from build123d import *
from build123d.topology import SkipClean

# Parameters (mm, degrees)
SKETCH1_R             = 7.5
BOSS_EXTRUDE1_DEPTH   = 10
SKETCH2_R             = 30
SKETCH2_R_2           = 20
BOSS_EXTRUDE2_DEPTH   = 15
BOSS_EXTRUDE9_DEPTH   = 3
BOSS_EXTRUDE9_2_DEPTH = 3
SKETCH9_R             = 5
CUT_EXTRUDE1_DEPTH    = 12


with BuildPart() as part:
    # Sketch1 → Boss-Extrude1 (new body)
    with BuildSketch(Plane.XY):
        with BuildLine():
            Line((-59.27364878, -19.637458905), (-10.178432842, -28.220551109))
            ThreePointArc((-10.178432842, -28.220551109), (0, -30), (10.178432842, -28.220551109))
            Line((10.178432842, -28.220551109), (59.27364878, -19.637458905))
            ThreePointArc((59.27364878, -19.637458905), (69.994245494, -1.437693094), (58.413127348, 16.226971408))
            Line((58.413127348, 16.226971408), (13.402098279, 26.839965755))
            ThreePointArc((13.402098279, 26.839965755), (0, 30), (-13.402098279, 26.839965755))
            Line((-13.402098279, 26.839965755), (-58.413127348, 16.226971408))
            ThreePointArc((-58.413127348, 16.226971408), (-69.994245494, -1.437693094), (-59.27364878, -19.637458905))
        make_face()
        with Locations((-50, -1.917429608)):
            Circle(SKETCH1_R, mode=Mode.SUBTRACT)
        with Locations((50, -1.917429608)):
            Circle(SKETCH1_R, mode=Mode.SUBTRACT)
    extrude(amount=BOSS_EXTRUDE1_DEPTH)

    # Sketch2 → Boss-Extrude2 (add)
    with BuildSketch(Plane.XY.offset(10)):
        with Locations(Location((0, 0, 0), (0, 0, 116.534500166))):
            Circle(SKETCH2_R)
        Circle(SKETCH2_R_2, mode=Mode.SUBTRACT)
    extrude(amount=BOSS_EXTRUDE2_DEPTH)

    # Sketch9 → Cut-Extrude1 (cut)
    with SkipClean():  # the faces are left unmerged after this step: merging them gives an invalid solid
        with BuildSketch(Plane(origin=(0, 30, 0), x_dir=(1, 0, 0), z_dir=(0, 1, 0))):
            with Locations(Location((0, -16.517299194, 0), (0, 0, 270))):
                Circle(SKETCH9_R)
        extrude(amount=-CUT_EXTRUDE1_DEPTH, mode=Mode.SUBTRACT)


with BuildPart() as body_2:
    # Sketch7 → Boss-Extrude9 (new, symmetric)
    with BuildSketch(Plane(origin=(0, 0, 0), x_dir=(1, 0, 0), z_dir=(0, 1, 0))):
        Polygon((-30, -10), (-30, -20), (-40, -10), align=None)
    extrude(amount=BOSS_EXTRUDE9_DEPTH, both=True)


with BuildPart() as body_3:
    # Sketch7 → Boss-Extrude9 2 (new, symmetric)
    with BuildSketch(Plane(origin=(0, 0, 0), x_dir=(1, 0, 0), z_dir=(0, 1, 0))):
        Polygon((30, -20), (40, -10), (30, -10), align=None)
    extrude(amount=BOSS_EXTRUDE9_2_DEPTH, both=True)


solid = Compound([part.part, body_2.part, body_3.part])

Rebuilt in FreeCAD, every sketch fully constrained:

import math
import FreeCAD as App
import Part
import Sketcher
Q = App.Units.Quantity

doc = App.newDocument("Part")
body = doc.addObject("PartDesign::Body", "Body")

# Sketch on XY plane
sketch1 = doc.addObject("Sketcher::SketchObject", "Sketch")
body.addObject(sketch1)
sketch1.AttachmentSupport = (doc.XY_Plane, [""])
sketch1.MapMode = "FlatFace"
sketch1.addGeometry([
    Part.LineSegment(App.Vector(-59.273649, -19.637459, 0), App.Vector(-10.178433, -28.220551, 0)),  # 0
    Part.ArcOfCircle(Part.Circle(App.Vector(0, 0, 0), App.Vector(0, 0, 1), 30), math.radians(-109.833081), math.radians(-70.166919)),  # 1
    Part.LineSegment(App.Vector(10.178433, -28.220551, 0), App.Vector(59.273649, -19.637459, 0)),  # 2
    Part.ArcOfCircle(Part.Circle(App.Vector(50, -1.91743, 0), App.Vector(0, 0, 1), 20), math.radians(-62.375015), math.radians(65.123966)),  # 3
    Part.LineSegment(App.Vector(58.413127, 16.226971, 0), App.Vector(13.402098, 26.839966, 0)),  # 4
    Part.ArcOfCircle(Part.Circle(App.Vector(0, 0, 0), App.Vector(0, 0, 1), 30), math.radians(63.4655), math.radians(116.5345)),  # 5
    Part.LineSegment(App.Vector(-13.402098, 26.839966, 0), App.Vector(-58.413127, 16.226971, 0)),  # 6
    Part.ArcOfCircle(Part.Circle(App.Vector(-50, -1.91743, 0), App.Vector(0, 0, 1), 20), math.radians(114.876034), math.radians(242.375015)),  # 7
    Part.Circle(App.Vector(-50, -1.91743, 0), App.Vector(0, 0, 1), 7.5),  # 8
    Part.Circle(App.Vector(50, -1.91743, 0), App.Vector(0, 0, 1), 7.5),  # 9
], False)
sketch1.addConstraint([
    Sketcher.Constraint("Coincident", 0, 2, 1, 1),
    Sketcher.Constraint("Coincident", 1, 2, 2, 1),
    Sketcher.Constraint("Coincident", 2, 2, 3, 1),
    Sketcher.Constraint("Coincident", 3, 2, 4, 1),
    Sketcher.Constraint("Coincident", 4, 2, 5, 1),
    Sketcher.Constraint("Coincident", 5, 2, 6, 1),
    Sketcher.Constraint("Coincident", 6, 2, 7, 1),
    Sketcher.Constraint("Coincident", 7, 2, 0, 1),
    Sketcher.Constraint("Coincident", 1, 3, -1, 1),
    Sketcher.Constraint("Coincident", 5, 3, -1, 1),
    Sketcher.Constraint("Coincident", 8, 3, 7, 3),
    Sketcher.Constraint("Coincident", 9, 3, 3, 3),
    Sketcher.Constraint("Equal", 1, 5),
    Sketcher.Constraint("Equal", 3, 7),
    Sketcher.Constraint("Equal", 8, 9),
    Sketcher.Constraint("Symmetric", 3, 3, 7, 3, -2),
    Sketcher.Constraint("Horizontal", 0, 2, 1, 2),
    Sketcher.Constraint("Horizontal", 4, 2, 5, 2),
    Sketcher.Constraint("Horizontal", 3, 2, 6, 2),
    Sketcher.Constraint("Horizontal", 2, 2, 7, 2),
    Sketcher.Constraint("Diameter", 8, Q("15 mm")),
    Sketcher.Constraint("Radius", 1, Q("30 mm")),
    Sketcher.Constraint("Radius", 3, Q("20 mm")),
    Sketcher.Constraint("DistanceX", -1, 1, 3, 3, Q("50 mm")),
    Sketcher.Constraint("DistanceX", -1, 1, 4, 2, Q("13.402098 mm")),
    Sketcher.Constraint("DistanceY", 3, 3, 3, 2, Q("18.144401 mm")),
    Sketcher.Constraint("Distance", 0, Q("49.83984 mm")),
    Sketcher.Constraint("DistanceY", 3, 3, -1, 1, Q("1.91743 mm")),
    Sketcher.Constraint("DistanceY", 0, 2, -1, 1, Q("28.220551 mm")),
])
pad1 = doc.addObject("PartDesign::Pad", "Pad")
body.addObject(pad1)
pad1.Profile = sketch1
pad1.Length = 10

# Sketch on XY plane
sketch2 = doc.addObject("Sketcher::SketchObject", "Sketch001")
body.addObject(sketch2)
sketch2.AttachmentSupport = (doc.XY_Plane, [""])
sketch2.MapMode = "FlatFace"
sketch2.AttachmentOffset = App.Placement(App.Vector(0, 0, 10), App.Rotation())
sketch2.addGeometry([
    Part.Circle(App.Vector(0, 0, 0), App.Vector(0, 0, 1), 30),
    Part.Circle(App.Vector(0, 0, 0), App.Vector(0, 0, 1), 20),
], False)
sketch2.addConstraint([
    Sketcher.Constraint("Coincident", 0, 3, -1, 1),
    Sketcher.Constraint("Coincident", 1, 3, -1, 1),
    Sketcher.Constraint("Diameter", 0, Q("60 mm")),
    Sketcher.Constraint("Diameter", 1, Q("40 mm")),
])
pad2 = doc.addObject("PartDesign::Pad", "Pad001")
body.addObject(pad2)
pad2.Profile = sketch2
pad2.Length = 15

# Sketch on XZ plane
sketch3 = doc.addObject("Sketcher::SketchObject", "Sketch002")
body.addObject(sketch3)
sketch3.AttachmentSupport = (doc.XZ_Plane, [""])
sketch3.MapMode = "FlatFace"
sketch3.AttachmentOffset = App.Placement(App.Vector(0, 0, -30), App.Rotation())
sketch3.addGeometry(Part.Circle(App.Vector(0, 16.517299, 0), App.Vector(0, 0, 1), 5), False)
sketch3.addConstraint([
    Sketcher.Constraint("PointOnObject", 0, 3, -2),
    Sketcher.Constraint("Diameter", 0, Q("10 mm")),
    Sketcher.Constraint("DistanceY", -1, 1, 0, 3, Q("16.517299 mm")),
])
pocket1 = doc.addObject("PartDesign::Pocket", "Pocket")
body.addObject(pocket1)
pocket1.Profile = sketch3
pocket1.Length = 12
pocket1.Reversed = True
body2 = doc.addObject("PartDesign::Body", "Body001")

# Sketch on XZ plane
sketch4 = doc.addObject("Sketcher::SketchObject", "Sketch003")
body2.addObject(sketch4)
sketch4.AttachmentSupport = (doc.getObject("XZ_Plane001"), [""])
sketch4.MapMode = "FlatFace"
sketch4.addGeometry([
    Part.LineSegment(App.Vector(-30, 20, 0), App.Vector(-30, 10, 0)),
    Part.LineSegment(App.Vector(-30, 10, 0), App.Vector(-40, 10, 0)),
    Part.LineSegment(App.Vector(-40, 10, 0), App.Vector(-30, 20, 0)),
], False)
sketch4.addConstraint([
    Sketcher.Constraint("Coincident", 0, 2, 1, 1),
    Sketcher.Constraint("Coincident", 1, 2, 2, 1),
    Sketcher.Constraint("Coincident", 2, 2, 0, 1),
    Sketcher.Constraint("Vertical", 0),
    Sketcher.Constraint("Horizontal", 1),
    Sketcher.Constraint("Equal", 1, 0),
    Sketcher.Constraint("DistanceX", 1, 2, 1, 1, Q("10 mm")),
    Sketcher.Constraint("DistanceX", 0, 2, -1, 1, Q("30 mm")),
    Sketcher.Constraint("DistanceY", -1, 1, 0, 2, Q("10 mm")),
])
pad3 = doc.addObject("PartDesign::Pad", "Pad002")
body2.addObject(pad3)
pad3.Profile = sketch4
pad3.Length = 6
pad3.Midplane = True
body3 = doc.addObject("PartDesign::Body", "Body002")

# Sketch on XZ plane
sketch5 = doc.addObject("Sketcher::SketchObject", "Sketch004")
body3.addObject(sketch5)
sketch5.AttachmentSupport = (doc.getObject("XZ_Plane002"), [""])
sketch5.MapMode = "FlatFace"
sketch5.addGeometry([
    Part.LineSegment(App.Vector(30, 20, 0), App.Vector(40, 10, 0)),
    Part.LineSegment(App.Vector(40, 10, 0), App.Vector(30, 10, 0)),
    Part.LineSegment(App.Vector(30, 10, 0), App.Vector(30, 20, 0)),
], False)
sketch5.addConstraint([
    Sketcher.Constraint("Coincident", 0, 2, 1, 1),
    Sketcher.Constraint("Coincident", 1, 2, 2, 1),
    Sketcher.Constraint("Coincident", 2, 2, 0, 1),
    Sketcher.Constraint("Horizontal", 1),
    Sketcher.Constraint("Vertical", 2),
    Sketcher.Constraint("Equal", 1, 2),
    Sketcher.Constraint("DistanceX", 1, 2, 1, 1, Q("10 mm")),
    Sketcher.Constraint("DistanceX", -1, 1, 0, 2, Q("40 mm")),
    Sketcher.Constraint("DistanceY", -1, 1, 0, 2, Q("10 mm")),
])
pad4 = doc.addObject("PartDesign::Pad", "Pad003")
body3.addObject(pad4)
pad4.Profile = sketch5
pad4.Length = 6
pad4.Midplane = True

doc.recompute()
